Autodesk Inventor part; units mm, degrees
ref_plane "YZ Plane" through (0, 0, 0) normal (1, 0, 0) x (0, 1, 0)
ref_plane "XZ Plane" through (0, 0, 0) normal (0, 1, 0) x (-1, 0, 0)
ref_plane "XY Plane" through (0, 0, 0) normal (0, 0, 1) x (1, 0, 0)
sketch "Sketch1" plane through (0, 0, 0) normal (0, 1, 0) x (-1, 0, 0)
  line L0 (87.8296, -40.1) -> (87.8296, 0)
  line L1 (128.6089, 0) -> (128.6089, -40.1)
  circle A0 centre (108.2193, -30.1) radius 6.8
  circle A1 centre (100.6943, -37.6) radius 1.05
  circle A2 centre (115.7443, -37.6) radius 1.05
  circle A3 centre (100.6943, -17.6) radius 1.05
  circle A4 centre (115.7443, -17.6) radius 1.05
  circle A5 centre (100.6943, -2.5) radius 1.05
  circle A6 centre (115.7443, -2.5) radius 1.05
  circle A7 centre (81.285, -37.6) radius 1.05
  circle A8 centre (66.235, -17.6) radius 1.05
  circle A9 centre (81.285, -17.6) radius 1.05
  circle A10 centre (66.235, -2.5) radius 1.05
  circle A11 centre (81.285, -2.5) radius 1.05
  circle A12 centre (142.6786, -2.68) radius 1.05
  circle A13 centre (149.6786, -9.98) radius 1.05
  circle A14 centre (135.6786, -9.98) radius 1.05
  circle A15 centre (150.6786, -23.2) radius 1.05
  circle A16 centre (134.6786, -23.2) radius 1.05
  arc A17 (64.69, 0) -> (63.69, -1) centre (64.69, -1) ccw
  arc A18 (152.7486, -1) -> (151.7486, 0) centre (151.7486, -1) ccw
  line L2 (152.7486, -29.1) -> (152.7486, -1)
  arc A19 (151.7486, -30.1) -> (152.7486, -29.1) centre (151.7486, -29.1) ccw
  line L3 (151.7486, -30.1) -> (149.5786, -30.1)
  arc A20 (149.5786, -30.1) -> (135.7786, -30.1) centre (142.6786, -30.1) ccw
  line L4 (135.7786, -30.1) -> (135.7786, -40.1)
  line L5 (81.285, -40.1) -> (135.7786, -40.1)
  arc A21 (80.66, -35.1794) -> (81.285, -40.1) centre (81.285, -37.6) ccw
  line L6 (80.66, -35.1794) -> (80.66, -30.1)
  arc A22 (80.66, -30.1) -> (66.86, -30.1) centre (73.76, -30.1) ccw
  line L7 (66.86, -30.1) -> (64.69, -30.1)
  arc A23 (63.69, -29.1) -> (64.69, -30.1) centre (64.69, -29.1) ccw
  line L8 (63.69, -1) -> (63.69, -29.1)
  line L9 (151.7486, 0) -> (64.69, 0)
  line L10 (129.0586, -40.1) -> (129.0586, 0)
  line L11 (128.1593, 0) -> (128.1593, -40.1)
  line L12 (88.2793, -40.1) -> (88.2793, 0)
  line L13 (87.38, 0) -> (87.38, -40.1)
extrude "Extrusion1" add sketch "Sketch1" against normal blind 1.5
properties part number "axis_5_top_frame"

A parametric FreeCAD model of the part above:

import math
import FreeCAD as App
import Part
import Sketcher
from FreeCAD import Vector
Q = App.Units.Quantity

doc = App.newDocument("Part")
params = doc.addObject("Spreadsheet::Sheet", "Params")
for row, (alias, value) in enumerate([
    ("sketch1_radius", "1 mm"),
    ("sketch1_diameter", "2.1 mm"),
    ("sketch1_diameter2", "13.6 mm"),
    ("sketch1_radius2", "6.9 mm"),
    ("sketch1_radius3", "2.5 mm"),
    ("pad1_length", "1.5 mm"),
], start=1):
    params.set(f"A{row}", alias)
    params.set(f"B{row}", "=" + value)
    params.setAlias(f"B{row}", alias)

body = doc.addObject("PartDesign::Body", "Body")

# Sketch on XZ plane
sketch1 = doc.addObject("Sketcher::SketchObject", "Sketch")
body.addObject(sketch1)
sketch1.AttachmentSupport = (doc.XZ_Plane, [""])
sketch1.MapMode = "FlatFace"
sketch1.addGeometry([
    Part.LineSegment(Vector(-135.8, -40.1, 0), Vector(-135.8, -30.1, 0)),  # 0
    Part.ArcOfCircle(Part.Circle(Vector(-142.7, -30.1, 0), Vector(0, 0, 1), 6.9), math.radians(0), math.radians(180)),  # 1
    Part.LineSegment(Vector(-149.6, -30.1, 0), Vector(-151.7, -30.1, 0)),  # 2
    Part.ArcOfCircle(Part.Circle(Vector(-151.7, -29.1, 0), Vector(0, 0, 1), 1), math.radians(180), math.radians(270)),  # 3
    Part.LineSegment(Vector(-152.7, -29.1, 0), Vector(-152.7, -1, 0)),  # 4
    Part.ArcOfCircle(Part.Circle(Vector(-151.7, -1, 0), Vector(0, 0, 1), 1), math.radians(90), math.radians(180)),  # 5
    Part.LineSegment(Vector(-151.7, 0, 0), Vector(-64.7, 0, 0)),  # 6
    Part.ArcOfCircle(Part.Circle(Vector(-64.7, -1, 0), Vector(0, 0, 1), 1), math.radians(0), math.radians(90)),  # 7
    Part.LineSegment(Vector(-63.7, -1, 0), Vector(-63.7, -29.1, 0)),  # 8
    Part.ArcOfCircle(Part.Circle(Vector(-64.7, -29.1, 0), Vector(0, 0, 1), 1), math.radians(-90), math.radians(0)),  # 9
    Part.LineSegment(Vector(-64.7, -30.1, 0), Vector(-66.9, -30.1, 0)),  # 10
    Part.ArcOfCircle(Part.Circle(Vector(-73.8, -30.1, 0), Vector(0, 0, 1), 6.9), math.radians(0), math.radians(180)),  # 11
    Part.LineSegment(Vector(-80.7, -30.1, 0), Vector(-80.7, -35.2, 0)),  # 12
    Part.ArcOfCircle(Part.Circle(Vector(-81.3, -37.6, 0), Vector(0, 0, 1), 2.5), math.radians(-90), math.radians(76)),  # 13
    Part.LineSegment(Vector(-81.3, -40.1, 0), Vector(-135.8, -40.1, 0)),  # 14
    Part.Circle(Vector(-81.3, -2.5, 0), Vector(0, 0, 1), 1.1),  # 15
    Part.Circle(Vector(-81.3, -37.6, 0), Vector(0, 0, 1), 1.1),  # 16
    Part.Circle(Vector(-66.2, -17.6, 0), Vector(0, 0, 1), 1.1),  # 17
    Part.Circle(Vector(-81.3, -17.6, 0), Vector(0, 0, 1), 1.1),  # 18
    Part.Circle(Vector(-66.2, -2.5, 0), Vector(0, 0, 1), 1.1),  # 19
    Part.Circle(Vector(-115.7, -2.5, 0), Vector(0, 0, 1), 1.1),  # 20
    Part.Circle(Vector(-100.7, -37.6, 0), Vector(0, 0, 1), 1.1),  # 21
    Part.Circle(Vector(-115.7, -37.6, 0), Vector(0, 0, 1), 1.1),  # 22
    Part.Circle(Vector(-108.2, -30.1, 0), Vector(0, 0, 1), 6.8),  # 23
    Part.Circle(Vector(-100.7, -17.6, 0), Vector(0, 0, 1), 1.1),  # 24
    Part.Circle(Vector(-100.7, -2.5, 0), Vector(0, 0, 1), 1.1),  # 25
    Part.Circle(Vector(-115.7, -17.6, 0), Vector(0, 0, 1), 1.1),  # 26
    Part.Circle(Vector(-142.7, -2.7, 0), Vector(0, 0, 1), 1.1),  # 27
    Part.Circle(Vector(-134.7, -23.2, 0), Vector(0, 0, 1), 1.1),  # 28
    Part.Circle(Vector(-150.7, -23.2, 0), Vector(0, 0, 1), 1.1),  # 29
    Part.Circle(Vector(-135.7, -10, 0), Vector(0, 0, 1), 1.1),  # 30
    Part.Circle(Vector(-149.7, -10, 0), Vector(0, 0, 1), 1.1),  # 31
], False)
sketch1.addConstraint([
    Sketcher.Constraint("Tangent", 0, 2, 1, 1),
    Sketcher.Constraint("Coincident", 1, 2, 2, 1),
    Sketcher.Constraint("Tangent", 2, 2, 3, 2),
    Sketcher.Constraint("Tangent", 3, 1, 4, 1),
    Sketcher.Constraint("Tangent", 4, 2, 5, 2),
    Sketcher.Constraint("Tangent", 5, 1, 6, 1),
    Sketcher.Constraint("Tangent", 6, 2, 7, 2),
    Sketcher.Constraint("Tangent", 7, 1, 8, 1),
    Sketcher.Constraint("Tangent", 8, 2, 9, 2),
    Sketcher.Constraint("Tangent", 9, 1, 10, 1),
    Sketcher.Constraint("Coincident", 10, 2, 11, 1),
    Sketcher.Constraint("Tangent", 11, 2, 12, 1),
    Sketcher.Constraint("Coincident", 12, 2, 13, 2),
    Sketcher.Constraint("Tangent", 13, 1, 14, 1),
    Sketcher.Constraint("Coincident", 14, 2, 0, 1),
    Sketcher.Constraint("Vertical", 0),
    Sketcher.Constraint("Horizontal", 2),
    Sketcher.Constraint("Vertical", 4),
    Sketcher.Constraint("Horizontal", 6),
    Sketcher.Constraint("Vertical", 8),
    Sketcher.Constraint("Horizontal", 10),
    Sketcher.Constraint("Vertical", 12),
    Sketcher.Constraint("Horizontal", 14),
    Sketcher.Constraint("Coincident", 16, 3, 13, 3),
    Sketcher.Constraint("Equal", 3, 5),
    Sketcher.Constraint("Equal", 5, 7),
    Sketcher.Constraint("Equal", 7, 9),
    Sketcher.Constraint("Equal", 1, 11),
    Sketcher.Constraint("Equal", 15, 16),
    Sketcher.Constraint("Equal", 16, 17),
    Sketcher.Constraint("Equal", 17, 18),
    Sketcher.Constraint("Equal", 18, 19),
    Sketcher.Constraint("Equal", 19, 20),
    Sketcher.Constraint("Equal", 20, 21),
    Sketcher.Constraint("Equal", 21, 22),
    Sketcher.Constraint("Equal", 22, 24),
    Sketcher.Constraint("Equal", 24, 25),
    Sketcher.Constraint("Equal", 25, 26),
    Sketcher.Constraint("Equal", 26, 27),
    Sketcher.Constraint("Equal", 27, 28),
    Sketcher.Constraint("Equal", 28, 29),
    Sketcher.Constraint("Equal", 29, 30),
    Sketcher.Constraint("Equal", 30, 31),
    Sketcher.Constraint("PointOnObject", 5, 1, -1),
    Sketcher.Constraint("Horizontal", 3, 3, 9, 3),
    Sketcher.Constraint("Horizontal", 1, 3, 11, 3),
    Sketcher.Constraint("Horizontal", 17, 3, 18, 3),
    Sketcher.Constraint("Horizontal", 15, 3, 19, 3),
    Sketcher.Constraint("Horizontal", 19, 3, 20, 3),
    Sketcher.Constraint("Horizontal", 16, 3, 21, 3),
    Sketcher.Constraint("Horizontal", 21, 3, 22, 3),
    Sketcher.Constraint("Horizontal", 11, 3, 23, 3),
    Sketcher.Constraint("Horizontal", 18, 3, 24, 3),
    Sketcher.Constraint("Horizontal", 20, 3, 25, 3),
    Sketcher.Constraint("Horizontal", 24, 3, 26, 3),
    Sketcher.Constraint("Horizontal", 28, 3, 29, 3),
    Sketcher.Constraint("Horizontal", 30, 3, 31, 3),
    Sketcher.Constraint("Horizontal", 0, 2, 1, 2),
    Sketcher.Constraint("Vertical", 13, 3, 15, 3),
    Sketcher.Constraint("Vertical", 16, 3, 18, 3),
    Sketcher.Constraint("Vertical", 17, 3, 19, 3),
    Sketcher.Constraint("Vertical", 20, 3, 22, 3),
    Sketcher.Constraint("Vertical", 21, 3, 24, 3),
    Sketcher.Constraint("Vertical", 24, 3, 25, 3),
    Sketcher.Constraint("Vertical", 22, 3, 26, 3),
    Sketcher.Constraint("Vertical", 1, 3, 27, 3),
    Sketcher.Constraint("Equal", 2, 10),
    Sketcher.Constraint("Radius", 3, Q("1 mm")),
    Sketcher.Constraint("Diameter", 15, Q("2.1 mm")),
    Sketcher.Constraint("Diameter", 23, Q("13.6 mm")),
    Sketcher.Constraint("Radius", 1, Q("6.9 mm")),
    Sketcher.Constraint("Radius", 13, Q("2.5 mm")),
    Sketcher.Constraint("DistanceY", 0, 1, 0, 2, Q("10 mm")),
    Sketcher.Constraint("DistanceY", 4, 1, 4, 2, Q("28.1 mm")),
    Sketcher.Constraint("DistanceY", 13, 3, 17, 3, Q("20 mm")),
    Sketcher.Constraint("DistanceX", 1, 3, 28, 3, Q("8 mm")),
    Sketcher.Constraint("DistanceX", 29, 3, 1, 3, Q("8 mm")),
    Sketcher.Constraint("DistanceX", 27, 3, 30, 3, Q("7 mm")),
    Sketcher.Constraint("DistanceX", 31, 3, 27, 3, Q("7 mm")),
    Sketcher.Constraint("DistanceX", 2, 2, 2, 1, Q("2.17 mm")),
    Sketcher.Constraint("DistanceY", 15, 3, -1, 1, Q("2.5 mm")),
    Sketcher.Constraint("DistanceY", 28, 3, -1, 1, Q("23.2 mm")),
    Sketcher.Constraint("DistanceY", 30, 3, 27, 3, Q("7.3 mm")),
    Sketcher.Constraint("DistanceX", 7, 3, -1, 1, Q("64.69 mm")),
    Sketcher.Constraint("DistanceY", 27, 3, -1, 1, Q("2.68 mm")),
    Sketcher.Constraint("DistanceX", 15, 3, 17, 3, Q("15.05 mm")),
    Sketcher.Constraint("DistanceX", 22, 3, 21, 3, Q("15.05 mm")),
    Sketcher.Constraint("DistanceX", 6, 1, 6, 2, Q("87.0586 mm")),
    Sketcher.Constraint("DistanceX", 14, 2, 14, 1, Q("54.4936 mm")),
    Sketcher.Constraint("DistanceX", 22, 3, 23, 3, Q("7.525 mm")),
    Sketcher.Constraint("DistanceX", 20, 3, -1, 1, Q("115.7443 mm")),
])
sketch1.setExpression("Constraints[67]", "Params.sketch1_radius")
sketch1.setExpression("Constraints[68]", "Params.sketch1_diameter")
sketch1.setExpression("Constraints[69]", "Params.sketch1_diameter2")
sketch1.setExpression("Constraints[70]", "Params.sketch1_radius2")
sketch1.setExpression("Constraints[71]", "Params.sketch1_radius3")
pad1 = doc.addObject("PartDesign::Pad", "Pad")
body.addObject(pad1)
pad1.Profile = sketch1
pad1.setExpression("Length", "Params.pad1_length")

doc.recompute()
